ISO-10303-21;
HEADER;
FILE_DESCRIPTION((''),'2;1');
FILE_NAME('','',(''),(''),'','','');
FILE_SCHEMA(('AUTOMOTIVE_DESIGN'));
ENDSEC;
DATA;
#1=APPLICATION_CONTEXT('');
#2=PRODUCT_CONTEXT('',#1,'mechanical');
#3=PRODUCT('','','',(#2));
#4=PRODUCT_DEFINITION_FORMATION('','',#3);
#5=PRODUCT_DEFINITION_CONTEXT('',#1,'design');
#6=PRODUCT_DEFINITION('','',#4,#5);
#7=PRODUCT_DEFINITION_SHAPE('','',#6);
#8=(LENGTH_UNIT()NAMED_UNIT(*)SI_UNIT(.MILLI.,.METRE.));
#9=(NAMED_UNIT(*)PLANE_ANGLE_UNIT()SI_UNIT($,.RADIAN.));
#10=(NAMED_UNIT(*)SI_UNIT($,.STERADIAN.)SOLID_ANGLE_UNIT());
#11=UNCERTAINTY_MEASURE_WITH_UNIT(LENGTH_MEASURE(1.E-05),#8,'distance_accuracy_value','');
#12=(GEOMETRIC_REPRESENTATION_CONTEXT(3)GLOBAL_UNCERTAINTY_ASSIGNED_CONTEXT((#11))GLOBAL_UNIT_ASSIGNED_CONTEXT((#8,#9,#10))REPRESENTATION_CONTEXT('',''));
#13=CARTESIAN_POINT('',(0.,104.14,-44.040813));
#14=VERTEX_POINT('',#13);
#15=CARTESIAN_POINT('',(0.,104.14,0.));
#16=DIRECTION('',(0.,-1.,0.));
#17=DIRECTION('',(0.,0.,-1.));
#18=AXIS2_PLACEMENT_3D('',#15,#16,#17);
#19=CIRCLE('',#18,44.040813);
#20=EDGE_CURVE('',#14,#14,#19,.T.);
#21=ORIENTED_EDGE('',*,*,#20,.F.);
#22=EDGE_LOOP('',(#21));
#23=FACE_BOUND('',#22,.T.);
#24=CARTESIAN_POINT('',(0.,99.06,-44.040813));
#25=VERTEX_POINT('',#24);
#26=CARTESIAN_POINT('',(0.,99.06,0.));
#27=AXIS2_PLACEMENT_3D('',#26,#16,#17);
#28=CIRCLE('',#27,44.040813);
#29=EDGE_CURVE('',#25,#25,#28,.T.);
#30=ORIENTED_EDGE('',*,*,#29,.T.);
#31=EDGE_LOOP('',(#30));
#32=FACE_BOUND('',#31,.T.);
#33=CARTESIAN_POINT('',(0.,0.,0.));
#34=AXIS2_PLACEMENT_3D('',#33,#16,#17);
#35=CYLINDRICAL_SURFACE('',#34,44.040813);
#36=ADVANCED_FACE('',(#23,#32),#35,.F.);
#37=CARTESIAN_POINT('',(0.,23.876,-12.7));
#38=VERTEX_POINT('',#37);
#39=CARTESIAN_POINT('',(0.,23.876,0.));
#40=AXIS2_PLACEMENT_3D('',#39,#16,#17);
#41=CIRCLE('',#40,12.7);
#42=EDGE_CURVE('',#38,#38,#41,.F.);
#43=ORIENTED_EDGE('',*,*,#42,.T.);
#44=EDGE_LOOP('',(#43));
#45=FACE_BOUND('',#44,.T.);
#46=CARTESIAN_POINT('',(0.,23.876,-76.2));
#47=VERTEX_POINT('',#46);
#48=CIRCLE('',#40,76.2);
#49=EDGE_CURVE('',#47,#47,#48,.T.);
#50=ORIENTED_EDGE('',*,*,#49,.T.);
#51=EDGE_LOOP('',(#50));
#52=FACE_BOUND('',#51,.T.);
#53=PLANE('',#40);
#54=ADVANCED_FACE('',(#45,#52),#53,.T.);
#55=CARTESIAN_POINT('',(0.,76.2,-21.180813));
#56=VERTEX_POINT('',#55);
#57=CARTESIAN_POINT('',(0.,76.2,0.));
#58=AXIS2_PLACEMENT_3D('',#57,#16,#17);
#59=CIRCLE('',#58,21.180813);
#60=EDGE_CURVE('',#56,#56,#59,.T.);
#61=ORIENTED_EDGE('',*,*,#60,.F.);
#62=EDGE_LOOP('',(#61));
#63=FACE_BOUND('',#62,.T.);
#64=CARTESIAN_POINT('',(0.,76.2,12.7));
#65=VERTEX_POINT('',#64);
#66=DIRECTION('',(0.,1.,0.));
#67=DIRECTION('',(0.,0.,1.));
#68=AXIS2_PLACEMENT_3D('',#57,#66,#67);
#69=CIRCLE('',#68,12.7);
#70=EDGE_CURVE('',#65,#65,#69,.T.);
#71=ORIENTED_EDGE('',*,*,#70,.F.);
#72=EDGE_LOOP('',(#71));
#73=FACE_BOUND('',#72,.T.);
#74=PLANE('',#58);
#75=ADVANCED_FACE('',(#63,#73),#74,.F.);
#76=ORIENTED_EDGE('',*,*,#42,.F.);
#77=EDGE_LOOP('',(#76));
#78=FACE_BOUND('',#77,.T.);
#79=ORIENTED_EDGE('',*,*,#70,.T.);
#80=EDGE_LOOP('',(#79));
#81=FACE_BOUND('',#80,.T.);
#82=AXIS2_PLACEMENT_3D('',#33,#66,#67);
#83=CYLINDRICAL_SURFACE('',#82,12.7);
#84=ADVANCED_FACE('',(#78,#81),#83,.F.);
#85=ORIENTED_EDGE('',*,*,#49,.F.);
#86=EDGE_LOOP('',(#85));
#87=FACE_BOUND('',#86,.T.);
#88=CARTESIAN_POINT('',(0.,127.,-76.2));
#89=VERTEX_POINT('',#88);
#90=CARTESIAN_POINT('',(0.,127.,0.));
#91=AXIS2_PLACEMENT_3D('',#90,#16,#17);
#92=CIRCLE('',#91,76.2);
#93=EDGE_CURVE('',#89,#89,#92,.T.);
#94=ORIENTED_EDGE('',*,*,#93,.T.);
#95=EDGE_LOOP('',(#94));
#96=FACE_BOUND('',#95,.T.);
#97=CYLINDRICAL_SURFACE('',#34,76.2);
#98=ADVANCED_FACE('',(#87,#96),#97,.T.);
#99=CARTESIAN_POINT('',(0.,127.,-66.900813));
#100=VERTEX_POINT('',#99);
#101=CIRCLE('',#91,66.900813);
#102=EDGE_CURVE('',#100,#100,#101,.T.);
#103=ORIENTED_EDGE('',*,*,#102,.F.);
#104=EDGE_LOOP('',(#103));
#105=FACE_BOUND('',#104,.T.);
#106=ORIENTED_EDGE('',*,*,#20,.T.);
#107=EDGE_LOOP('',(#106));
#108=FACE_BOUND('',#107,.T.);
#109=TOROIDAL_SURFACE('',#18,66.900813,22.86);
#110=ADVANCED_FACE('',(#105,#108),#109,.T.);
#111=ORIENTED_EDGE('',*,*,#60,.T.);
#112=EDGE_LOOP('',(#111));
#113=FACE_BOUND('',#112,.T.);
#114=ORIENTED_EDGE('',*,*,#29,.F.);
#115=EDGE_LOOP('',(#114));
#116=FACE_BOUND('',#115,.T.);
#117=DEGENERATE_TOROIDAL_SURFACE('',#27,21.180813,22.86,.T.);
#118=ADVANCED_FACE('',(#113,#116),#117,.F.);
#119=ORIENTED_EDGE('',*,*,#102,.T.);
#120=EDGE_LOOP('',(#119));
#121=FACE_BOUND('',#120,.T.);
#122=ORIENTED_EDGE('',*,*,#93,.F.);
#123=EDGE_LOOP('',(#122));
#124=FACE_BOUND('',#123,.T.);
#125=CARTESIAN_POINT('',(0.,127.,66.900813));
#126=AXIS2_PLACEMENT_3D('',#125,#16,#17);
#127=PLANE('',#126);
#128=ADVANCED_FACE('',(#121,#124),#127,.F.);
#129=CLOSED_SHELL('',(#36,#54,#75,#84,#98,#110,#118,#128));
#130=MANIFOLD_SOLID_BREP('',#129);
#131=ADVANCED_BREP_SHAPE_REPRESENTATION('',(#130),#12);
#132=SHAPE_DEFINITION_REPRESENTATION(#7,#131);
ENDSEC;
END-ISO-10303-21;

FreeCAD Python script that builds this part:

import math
import FreeCAD as App
import Part
import Sketcher
from FreeCAD import Vector
Q = App.Units.Quantity

doc = App.newDocument("Part")
body = doc.addObject("PartDesign::Body", "Body")

sketch1 = body.newObject("Sketcher::SketchObject", "Sketch")
sketch1.AttachmentSupport = (doc.getObject("YZ_Plane"), [""])
sketch1.MapMode = "FlatFace"
sketch1.addGeometry([
    Part.LineSegment(Vector(0, 0, 0), Vector(76.2, 0, 0)),
    Part.LineSegment(Vector(76.2, 0, 0), Vector(76.2, 21.180813, 0)),
    Part.ArcOfCircle(Part.Circle(Vector(99.06, 21.180813, 0), Vector(0, 0, 1), 22.86), math.radians(90), math.radians(180)),
    Part.LineSegment(Vector(99.06, 44.040813, 0), Vector(104.14, 44.040813, 0)),
    Part.ArcOfCircle(Part.Circle(Vector(104.14, 66.900813, 0), Vector(0, 0, 1), 22.86), math.radians(-90), math.radians(0)),
    Part.LineSegment(Vector(127, 66.900813, 0), Vector(127, 76.2, 0)),
    Part.LineSegment(Vector(127, 76.2, 0), Vector(0, 76.2, 0)),
    Part.LineSegment(Vector(0, 76.2, 0), Vector(0, 0, 0)),
], False)
sketch1.addConstraint([
    Sketcher.Constraint("Coincident", 0, 2, 1, 1),
    Sketcher.Constraint("Tangent", 1, 2, 2, 2),
    Sketcher.Constraint("Tangent", 2, 1, 3, 1),
    Sketcher.Constraint("Tangent", 3, 2, 4, 1),
    Sketcher.Constraint("Tangent", 4, 2, 5, 1),
    Sketcher.Constraint("Coincident", 5, 2, 6, 1),
    Sketcher.Constraint("Coincident", 6, 2, 7, 1),
    Sketcher.Constraint("Coincident", 7, 2, 0, 1),
    Sketcher.Constraint("Horizontal", 0),
    Sketcher.Constraint("Vertical", 1),
    Sketcher.Constraint("Horizontal", 3),
    Sketcher.Constraint("Vertical", 5),
    Sketcher.Constraint("Horizontal", 6),
    Sketcher.Constraint("Vertical", 7),
    Sketcher.Constraint("Coincident", 7, 2, -1, 1),
    Sketcher.Constraint("Equal", 2, 4),
    Sketcher.Constraint("Equal", 0, 7),
    Sketcher.Constraint("Radius", 2, Q("0.9 in")),
    Sketcher.Constraint("DistanceX", 0, 1, 0, 2, Q("3 in")),
    Sketcher.Constraint("DistanceX", 6, 2, 6, 1, Q("5 in")),
    Sketcher.Constraint("DistanceY", 1, 1, 1, 2, Q("21.180813 mm")),
])
revolution = body.newObject("PartDesign::Revolution", "Revolution")
revolution.Profile = sketch1
revolution.ReferenceAxis = (sketch1, ["H_Axis"])
revolution.Angle = 360

sketch2 = body.newObject("Sketcher::SketchObject", "Sketch001")
sketch2.AttachmentSupport = (doc.getObject("XZ_Plane"), [""])
sketch2.MapMode = "FlatFace"
sketch2.AttachmentOffset = App.Placement(Vector(0, 0, -3 * 25.4), App.Rotation())
sketch2.addGeometry(Part.Circle(Vector(0, 0, 0), Vector(0, 0, 1), 12.7), False)
sketch2.addConstraint([
    Sketcher.Constraint("Coincident", 0, 3, -1, 1),
    Sketcher.Constraint("Diameter", 0, Q("1 in")),
])
pocket1 = body.newObject("PartDesign::Pocket", "Pocket")
pocket1.Profile = sketch2
pocket1.Type = "ThroughAll"
pocket1.Reversed = True

sketch3 = body.newObject("Sketcher::SketchObject", "Sketch002")
sketch3.AttachmentSupport = (doc.getObject("XZ_Plane"), [""])
sketch3.MapMode = "FlatFace"
sketch3.addGeometry(Part.Circle(Vector(0, 0, 0), Vector(0, 0, 1), 76.2), False)
sketch3.addConstraint([
    Sketcher.Constraint("Coincident", 0, 3, -1, 1),
    Sketcher.Constraint("Diameter", 0, Q("6 in")),
])
pocket2 = body.newObject("PartDesign::Pocket", "Pocket001")
pocket2.Profile = sketch3
pocket2.Length = Q("0.94 in")

doc.recompute()
